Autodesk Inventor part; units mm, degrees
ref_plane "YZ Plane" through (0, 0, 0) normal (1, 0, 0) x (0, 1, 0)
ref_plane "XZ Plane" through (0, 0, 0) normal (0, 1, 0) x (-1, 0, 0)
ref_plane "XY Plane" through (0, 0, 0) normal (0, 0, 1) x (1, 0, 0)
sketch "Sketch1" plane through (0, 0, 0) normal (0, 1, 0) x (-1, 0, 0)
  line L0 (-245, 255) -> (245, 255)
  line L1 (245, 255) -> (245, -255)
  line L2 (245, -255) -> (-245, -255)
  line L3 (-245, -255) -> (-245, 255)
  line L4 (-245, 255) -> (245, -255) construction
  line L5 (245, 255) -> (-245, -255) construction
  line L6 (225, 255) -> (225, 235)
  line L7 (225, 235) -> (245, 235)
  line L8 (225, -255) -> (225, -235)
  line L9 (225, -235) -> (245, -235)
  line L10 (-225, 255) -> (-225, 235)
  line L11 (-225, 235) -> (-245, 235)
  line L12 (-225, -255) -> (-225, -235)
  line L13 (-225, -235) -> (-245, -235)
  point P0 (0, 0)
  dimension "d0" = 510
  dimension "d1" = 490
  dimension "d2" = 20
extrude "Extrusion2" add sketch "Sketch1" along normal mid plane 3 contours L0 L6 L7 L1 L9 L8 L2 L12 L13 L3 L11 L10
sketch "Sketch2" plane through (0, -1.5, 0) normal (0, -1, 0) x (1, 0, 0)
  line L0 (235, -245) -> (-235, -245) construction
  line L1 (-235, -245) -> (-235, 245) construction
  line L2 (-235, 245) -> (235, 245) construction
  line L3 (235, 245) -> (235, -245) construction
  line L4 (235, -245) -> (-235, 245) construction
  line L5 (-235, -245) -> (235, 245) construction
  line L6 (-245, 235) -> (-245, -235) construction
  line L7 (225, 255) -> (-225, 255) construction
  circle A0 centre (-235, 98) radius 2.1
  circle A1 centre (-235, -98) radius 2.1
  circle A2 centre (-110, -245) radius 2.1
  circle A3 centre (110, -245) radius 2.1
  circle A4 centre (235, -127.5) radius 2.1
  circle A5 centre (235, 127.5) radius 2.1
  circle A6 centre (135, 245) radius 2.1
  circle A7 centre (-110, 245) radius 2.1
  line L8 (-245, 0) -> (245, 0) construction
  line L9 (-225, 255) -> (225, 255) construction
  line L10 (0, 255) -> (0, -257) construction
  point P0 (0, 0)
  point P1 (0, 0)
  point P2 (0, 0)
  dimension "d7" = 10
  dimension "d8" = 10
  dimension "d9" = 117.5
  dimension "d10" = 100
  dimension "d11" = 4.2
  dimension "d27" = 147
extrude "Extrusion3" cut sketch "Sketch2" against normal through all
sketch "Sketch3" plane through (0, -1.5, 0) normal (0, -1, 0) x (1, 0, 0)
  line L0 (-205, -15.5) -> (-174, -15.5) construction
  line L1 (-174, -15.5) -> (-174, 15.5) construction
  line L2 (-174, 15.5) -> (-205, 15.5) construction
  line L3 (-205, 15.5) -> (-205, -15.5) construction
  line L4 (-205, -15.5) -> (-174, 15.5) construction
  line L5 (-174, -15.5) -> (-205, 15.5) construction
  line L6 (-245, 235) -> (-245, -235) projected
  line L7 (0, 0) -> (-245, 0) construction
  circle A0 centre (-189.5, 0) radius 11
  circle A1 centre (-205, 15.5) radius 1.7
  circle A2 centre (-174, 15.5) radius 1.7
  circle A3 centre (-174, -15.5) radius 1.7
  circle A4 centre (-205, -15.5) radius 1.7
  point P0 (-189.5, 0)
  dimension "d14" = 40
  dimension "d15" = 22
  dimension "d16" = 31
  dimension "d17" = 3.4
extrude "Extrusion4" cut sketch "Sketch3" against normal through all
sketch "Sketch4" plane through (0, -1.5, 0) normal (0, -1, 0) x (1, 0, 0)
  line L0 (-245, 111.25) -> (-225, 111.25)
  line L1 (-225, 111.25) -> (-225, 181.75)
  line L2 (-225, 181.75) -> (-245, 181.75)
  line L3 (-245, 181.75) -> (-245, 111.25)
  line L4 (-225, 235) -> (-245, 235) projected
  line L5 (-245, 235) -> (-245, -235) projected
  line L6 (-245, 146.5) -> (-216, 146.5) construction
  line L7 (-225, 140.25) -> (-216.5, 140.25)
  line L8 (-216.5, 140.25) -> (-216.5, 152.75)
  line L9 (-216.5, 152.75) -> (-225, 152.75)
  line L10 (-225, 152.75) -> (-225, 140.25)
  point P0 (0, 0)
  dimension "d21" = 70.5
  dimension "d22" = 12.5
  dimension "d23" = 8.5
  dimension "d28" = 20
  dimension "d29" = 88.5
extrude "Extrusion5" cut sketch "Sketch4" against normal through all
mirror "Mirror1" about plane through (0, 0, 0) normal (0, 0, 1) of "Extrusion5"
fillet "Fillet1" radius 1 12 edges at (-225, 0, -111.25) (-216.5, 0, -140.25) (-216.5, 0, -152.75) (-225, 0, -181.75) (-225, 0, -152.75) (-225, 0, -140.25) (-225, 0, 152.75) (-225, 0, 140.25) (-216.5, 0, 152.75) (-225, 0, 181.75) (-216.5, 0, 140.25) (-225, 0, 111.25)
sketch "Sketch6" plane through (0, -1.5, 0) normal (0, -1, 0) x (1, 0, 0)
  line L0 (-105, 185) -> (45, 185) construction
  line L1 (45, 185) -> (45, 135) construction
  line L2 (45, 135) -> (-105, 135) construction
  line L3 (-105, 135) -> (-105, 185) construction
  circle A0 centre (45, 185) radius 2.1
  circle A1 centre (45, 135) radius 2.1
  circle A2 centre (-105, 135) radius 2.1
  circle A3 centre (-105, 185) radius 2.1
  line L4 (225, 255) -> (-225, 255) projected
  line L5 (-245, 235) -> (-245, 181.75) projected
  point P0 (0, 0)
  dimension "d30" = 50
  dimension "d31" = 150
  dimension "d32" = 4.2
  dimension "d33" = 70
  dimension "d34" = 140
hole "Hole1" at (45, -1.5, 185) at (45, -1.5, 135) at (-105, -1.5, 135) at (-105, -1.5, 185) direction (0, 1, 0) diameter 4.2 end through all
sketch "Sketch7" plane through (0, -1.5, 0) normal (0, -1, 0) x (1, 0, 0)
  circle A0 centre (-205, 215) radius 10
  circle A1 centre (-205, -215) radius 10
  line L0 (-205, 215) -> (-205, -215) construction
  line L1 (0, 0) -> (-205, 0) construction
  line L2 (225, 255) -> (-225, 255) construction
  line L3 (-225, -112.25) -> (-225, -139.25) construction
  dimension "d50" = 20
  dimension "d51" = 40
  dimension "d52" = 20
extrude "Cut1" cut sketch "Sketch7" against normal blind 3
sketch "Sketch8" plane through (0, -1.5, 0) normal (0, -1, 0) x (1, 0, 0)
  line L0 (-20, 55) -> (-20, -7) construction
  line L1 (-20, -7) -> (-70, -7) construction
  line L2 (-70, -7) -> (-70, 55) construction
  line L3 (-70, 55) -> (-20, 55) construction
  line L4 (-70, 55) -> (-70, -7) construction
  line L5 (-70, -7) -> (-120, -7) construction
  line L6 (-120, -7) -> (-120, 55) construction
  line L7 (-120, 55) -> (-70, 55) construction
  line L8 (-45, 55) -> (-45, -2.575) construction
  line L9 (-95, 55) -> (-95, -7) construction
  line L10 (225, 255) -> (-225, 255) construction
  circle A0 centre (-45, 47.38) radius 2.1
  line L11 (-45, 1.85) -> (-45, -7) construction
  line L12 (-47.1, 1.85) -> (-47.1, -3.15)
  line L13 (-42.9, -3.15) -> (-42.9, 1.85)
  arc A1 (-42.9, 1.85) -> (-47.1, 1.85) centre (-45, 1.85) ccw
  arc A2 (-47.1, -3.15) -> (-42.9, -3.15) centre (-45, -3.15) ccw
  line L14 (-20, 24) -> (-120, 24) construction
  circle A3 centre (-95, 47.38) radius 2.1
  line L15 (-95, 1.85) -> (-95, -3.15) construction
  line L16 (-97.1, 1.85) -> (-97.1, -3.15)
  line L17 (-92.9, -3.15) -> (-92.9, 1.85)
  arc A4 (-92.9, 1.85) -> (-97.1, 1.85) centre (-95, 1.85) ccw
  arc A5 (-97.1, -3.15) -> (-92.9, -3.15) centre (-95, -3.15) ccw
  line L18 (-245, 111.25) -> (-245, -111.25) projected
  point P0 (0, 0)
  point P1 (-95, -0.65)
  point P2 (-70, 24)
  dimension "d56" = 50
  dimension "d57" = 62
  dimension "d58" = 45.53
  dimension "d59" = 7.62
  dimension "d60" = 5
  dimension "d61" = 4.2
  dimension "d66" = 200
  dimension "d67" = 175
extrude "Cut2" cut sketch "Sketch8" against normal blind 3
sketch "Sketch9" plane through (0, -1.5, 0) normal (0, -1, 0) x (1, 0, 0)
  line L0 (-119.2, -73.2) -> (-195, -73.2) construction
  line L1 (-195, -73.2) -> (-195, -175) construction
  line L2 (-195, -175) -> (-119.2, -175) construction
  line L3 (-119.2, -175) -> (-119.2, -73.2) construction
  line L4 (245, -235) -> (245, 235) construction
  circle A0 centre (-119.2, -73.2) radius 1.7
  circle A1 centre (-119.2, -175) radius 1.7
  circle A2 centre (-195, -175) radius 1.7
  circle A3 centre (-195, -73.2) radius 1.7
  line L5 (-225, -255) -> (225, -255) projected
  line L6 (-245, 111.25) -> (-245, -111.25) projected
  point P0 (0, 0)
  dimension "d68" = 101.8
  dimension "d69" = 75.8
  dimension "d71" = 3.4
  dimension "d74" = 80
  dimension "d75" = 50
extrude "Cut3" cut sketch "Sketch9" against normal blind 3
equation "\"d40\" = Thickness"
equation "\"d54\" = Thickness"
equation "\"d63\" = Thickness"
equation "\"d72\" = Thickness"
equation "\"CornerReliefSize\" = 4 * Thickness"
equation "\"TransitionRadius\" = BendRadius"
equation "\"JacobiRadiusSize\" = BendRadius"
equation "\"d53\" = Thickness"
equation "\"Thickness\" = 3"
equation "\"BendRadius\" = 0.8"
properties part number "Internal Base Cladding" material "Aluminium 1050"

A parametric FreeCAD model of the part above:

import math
import FreeCAD as App
import Part
import Sketcher
Q = App.Units.Quantity


def edges_at(feature, points):
    """Names of the edges that pass closest to the given points."""
    edges = feature.Shape.Edges
    near = lambda p: min(range(len(edges)), key=lambda i: edges[i].distToShape(Part.Vertex(*p))[0])
    return sorted({f"Edge{near(p) + 1}" for p in points})


def add_polygon(sketch, points):
    """Adds a closed chain of lines whose ends are joined by coincident constraints."""
    first, n = sketch.GeometryCount, len(points)
    for a, b in zip(points, points[1:] + points[:1]):
        sketch.addGeometry(Part.LineSegment(App.Vector(*a, 0), App.Vector(*b, 0)), False)
    for i in range(n):
        sketch.addConstraint(Sketcher.Constraint("Coincident", first + i, 2, first + (i + 1) % n, 1))

doc = App.newDocument("Part")
body = doc.addObject("PartDesign::Body", "Body")

sketch1 = body.newObject("Sketcher::SketchObject", "Sketch")
sketch1.AttachmentSupport = (doc.getObject("XZ_Plane"), [""])
sketch1.MapMode = "FlatFace"
add_polygon(sketch1, [(-225, 255), (225, 255), (225, 235), (245, 235), (245, -235), (225, -235), (225, -255), (-225, -255), (-225, -235), (-245, -235), (-245, 235), (-225, 235)])
sketch1.addConstraint([
    Sketcher.Constraint("Horizontal", 0),
    Sketcher.Constraint("Vertical", 1),
    Sketcher.Constraint("Horizontal", 2),
    Sketcher.Constraint("Vertical", 3),
    Sketcher.Constraint("Horizontal", 4),
    Sketcher.Constraint("Vertical", 5),
    Sketcher.Constraint("Horizontal", 6),
    Sketcher.Constraint("Vertical", 7),
    Sketcher.Constraint("Horizontal", 8),
    Sketcher.Constraint("Vertical", 9),
    Sketcher.Constraint("Horizontal", 10),
    Sketcher.Constraint("Vertical", 11),
    Sketcher.Constraint("Symmetric", 0, 2, 6, 2, -1, 1),
    Sketcher.Constraint("Symmetric", 2, 2, 8, 2, -1, 1),
    Sketcher.Constraint("Symmetric", 4, 2, 10, 2, -1, 1),
    Sketcher.Constraint("Symmetric", 4, 2, 7, 2, -2),
    Sketcher.Constraint("Equal", 10, 1),
    Sketcher.Constraint("DistanceX", 2, 1, 2, 2, Q("20 mm")),
    Sketcher.Constraint("DistanceY", 3, 2, 0, 2, Q("490 mm")),
    Sketcher.Constraint("DistanceX", 8, 2, 3, 2, Q("490 mm")),
])
pad1 = body.newObject("PartDesign::Pad", "Pad")
pad1.Profile = sketch1
pad1.Length = 3
pad1.Midplane = True

sketch2 = body.newObject("Sketcher::SketchObject", "Sketch001")
sketch2.AttachmentSupport = (doc.getObject("XZ_Plane"), [""])
sketch2.MapMode = "FlatFace"
sketch2.AttachmentOffset = App.Placement(App.Vector(0, 0, 1.5), App.Rotation())
sketch2.addGeometry([
    Part.Circle(App.Vector(-235, 98, 0), App.Vector(0, 0, 1), 2.1),
    Part.Circle(App.Vector(-235, -98, 0), App.Vector(0, 0, 1), 2.1),
    Part.Circle(App.Vector(-110, -245, 0), App.Vector(0, 0, 1), 2.1),
    Part.Circle(App.Vector(110, -245, 0), App.Vector(0, 0, 1), 2.1),
    Part.Circle(App.Vector(235, -127.5, 0), App.Vector(0, 0, 1), 2.1),
    Part.Circle(App.Vector(235, 127.5, 0), App.Vector(0, 0, 1), 2.1),
    Part.Circle(App.Vector(135, 245, 0), App.Vector(0, 0, 1), 2.1),
    Part.Circle(App.Vector(-110, 245, 0), App.Vector(0, 0, 1), 2.1),
], False)
sketch2.addConstraint([
    Sketcher.Constraint("Equal", 0, 1),
    Sketcher.Constraint("Equal", 1, 2),
    Sketcher.Constraint("Equal", 2, 3),
    Sketcher.Constraint("Equal", 3, 4),
    Sketcher.Constraint("Equal", 4, 5),
    Sketcher.Constraint("Equal", 5, 6),
    Sketcher.Constraint("Equal", 6, 7),
    Sketcher.Constraint("Symmetric", 3, 3, 7, 3, -1, 1),
    Sketcher.Constraint("Symmetric", 2, 3, 3, 3, -2),
    Sketcher.Constraint("Symmetric", 0, 3, 1, 3, -1),
    Sketcher.Constraint("Symmetric", 4, 3, 5, 3, -1),
    Sketcher.Constraint("Horizontal", 6, 3, 7, 3),
    Sketcher.Constraint("Diameter", 0, Q("4.2 mm")),
    Sketcher.Constraint("DistanceY", 2, 3, 1, 3, Q("147 mm")),
    Sketcher.Constraint("DistanceX", 6, 3, 5, 3, Q("100 mm")),
    Sketcher.Constraint("DistanceY", 3, 3, 4, 3, Q("117.5 mm")),
    Sketcher.Constraint("DistanceX", 0, 3, -1, 1, Q("235 mm")),
    Sketcher.Constraint("DistanceY", -1, 1, 0, 3, Q("98 mm")),
    Sketcher.Constraint("DistanceX", 2, 3, -1, 1, Q("110 mm")),
    Sketcher.Constraint("DistanceX", -1, 1, 4, 3, Q("235 mm")),
])
pocket1 = body.newObject("PartDesign::Pocket", "Pocket")
pocket1.Profile = sketch2
pocket1.Type = "ThroughAll"

sketch3 = body.newObject("Sketcher::SketchObject", "Sketch002")
sketch3.AttachmentSupport = (doc.getObject("XZ_Plane"), [""])
sketch3.MapMode = "FlatFace"
sketch3.AttachmentOffset = App.Placement(App.Vector(0, 0, 1.5), App.Rotation())
sketch3.addGeometry([
    Part.Circle(App.Vector(-189.5, 0, 0), App.Vector(0, 0, 1), 11),
    Part.Circle(App.Vector(-205, 15.5, 0), App.Vector(0, 0, 1), 1.7),
    Part.Circle(App.Vector(-174, 15.5, 0), App.Vector(0, 0, 1), 1.7),
    Part.Circle(App.Vector(-174, -15.5, 0), App.Vector(0, 0, 1), 1.7),
    Part.Circle(App.Vector(-205, -15.5, 0), App.Vector(0, 0, 1), 1.7),
], False)
sketch3.addConstraint([
    Sketcher.Constraint("Equal", 1, 2),
    Sketcher.Constraint("Equal", 2, 3),
    Sketcher.Constraint("Equal", 3, 4),
    Sketcher.Constraint("Symmetric", 2, 3, 3, 3, -1),
    Sketcher.Constraint("Symmetric", 1, 3, 4, 3, -1),
    Sketcher.Constraint("PointOnObject", 0, 3, -1),
    Sketcher.Constraint("Horizontal", 1, 3, 2, 3),
    Sketcher.Constraint("Diameter", 0, Q("22 mm")),
    Sketcher.Constraint("Diameter", 1, Q("3.4 mm")),
    Sketcher.Constraint("DistanceX", 1, 3, 2, 3, Q("31 mm")),
    Sketcher.Constraint("DistanceY", 3, 3, 2, 3, Q("31 mm")),
    Sketcher.Constraint("DistanceX", 1, 3, -1, 1, Q("205 mm")),
    Sketcher.Constraint("DistanceX", 0, 3, -1, 1, Q("189.5 mm")),
])
pocket2 = body.newObject("PartDesign::Pocket", "Pocket001")
pocket2.Profile = sketch3
pocket2.Type = "ThroughAll"

sketch4 = body.newObject("Sketcher::SketchObject", "Sketch003")
sketch4.AttachmentSupport = (doc.getObject("XZ_Plane"), [""])
sketch4.MapMode = "FlatFace"
sketch4.AttachmentOffset = App.Placement(App.Vector(0, 0, 1.5), App.Rotation())
add_polygon(sketch4, [(-245, 182), (-245, 111), (-225, 111), (-225, 140), (-216, 140), (-216, 153), (-225, 153), (-225, 182)])
sketch4.addConstraint([
    Sketcher.Constraint("Vertical", 0),
    Sketcher.Constraint("Horizontal", 1),
    Sketcher.Constraint("Vertical", 2),
    Sketcher.Constraint("Horizontal", 3),
    Sketcher.Constraint("Vertical", 4),
    Sketcher.Constraint("Horizontal", 5),
    Sketcher.Constraint("Vertical", 6),
    Sketcher.Constraint("Horizontal", 7),
    Sketcher.Constraint("Vertical", 2, 2, 5, 2),
    Sketcher.Constraint("Equal", 2, 6),
    Sketcher.Constraint("DistanceX", 1, 1, 1, 2, Q("20 mm")),
    Sketcher.Constraint("DistanceX", 3, 1, 3, 2, Q("8.5 mm")),
    Sketcher.Constraint("DistanceY", 0, 2, 0, 1, Q("70.5 mm")),
    Sketcher.Constraint("DistanceY", 4, 1, 4, 2, Q("12.5 mm")),
    Sketcher.Constraint("DistanceX", 0, 2, -1, 1, Q("245 mm")),
    Sketcher.Constraint("DistanceY", -1, 1, 0, 2, Q("111.25 mm")),
])
pocket3 = body.newObject("PartDesign::Pocket", "Pocket002")
pocket3.Profile = sketch4
pocket3.Type = "ThroughAll"
doc.recompute()

mirrored = body.newObject("PartDesign::Mirrored", "Mirrored")
mirrored.Originals = [pocket3]
mirrored.MirrorPlane = (doc.getObject("XY_Plane"), [""])
body.Tip = mirrored
doc.recompute()

fillet = body.newObject("PartDesign::Fillet", "Fillet")
fillet.Base = (mirrored, edges_at(mirrored, [
    (-225, 0, -111.25),
    (-216.5, 0, -140.25),
    (-216.5, 0, -152.75),
    (-225, 0, -181.75),
    (-225, 0, -152.75),
    (-225, 0, -140.25),
    (-225, 0, 152.75),
    (-225, 0, 140.25),
    (-216.5, 0, 152.75),
    (-225, 0, 181.75),
    (-216.5, 0, 140.25),
    (-225, 0, 111.25),
]))
fillet.Radius = 1

sketch5 = body.newObject("Sketcher::SketchObject", "Sketch004")
sketch5.AttachmentSupport = (doc.getObject("XZ_Plane"), [""])
sketch5.MapMode = "FlatFace"
sketch5.AttachmentOffset = App.Placement(App.Vector(0, 0, 1.5), App.Rotation())
sketch5.addGeometry([
    Part.Circle(App.Vector(45, 185, 0), App.Vector(0, 0, 1), 2.1),
    Part.Circle(App.Vector(45, 135, 0), App.Vector(0, 0, 1), 2.1),
    Part.Circle(App.Vector(-105, 135, 0), App.Vector(0, 0, 1), 2.1),
    Part.Circle(App.Vector(-105, 185, 0), App.Vector(0, 0, 1), 2.1),
], False)
sketch5.addConstraint([
    Sketcher.Constraint("Equal", 0, 1),
    Sketcher.Constraint("Equal", 1, 2),
    Sketcher.Constraint("Equal", 2, 3),
    Sketcher.Constraint("Horizontal", 1, 3, 2, 3),
    Sketcher.Constraint("Horizontal", 0, 3, 3, 3),
    Sketcher.Constraint("Vertical", 0, 3, 1, 3),
    Sketcher.Constraint("Vertical", 2, 3, 3, 3),
    Sketcher.Constraint("Diameter", 0, Q("4.2 mm")),
    Sketcher.Constraint("DistanceX", -1, 1, 0, 3, Q("45 mm")),
    Sketcher.Constraint("DistanceY", -1, 1, 0, 3, Q("185 mm")),
    Sketcher.Constraint("DistanceY", -1, 1, 1, 3, Q("135 mm")),
    Sketcher.Constraint("DistanceX", 2, 3, -1, 1, Q("105 mm")),
])
doc.recompute()
hole = body.newObject("PartDesign::Hole", "Hole")
hole.Profile = sketch5
hole.ThreadType = "None"
hole.Diameter = 4.2
hole.DepthType = "ThroughAll"

sketch6 = body.newObject("Sketcher::SketchObject", "Sketch005")
sketch6.AttachmentSupport = (doc.getObject("XZ_Plane"), [""])
sketch6.MapMode = "FlatFace"
sketch6.AttachmentOffset = App.Placement(App.Vector(0, 0, 1.5), App.Rotation())
sketch6.addGeometry([
    Part.Circle(App.Vector(-205, 215, 0), App.Vector(0, 0, 1), 10),
    Part.Circle(App.Vector(-205, -215, 0), App.Vector(0, 0, 1), 10),
], False)
sketch6.addConstraint([
    Sketcher.Constraint("Equal", 0, 1),
    Sketcher.Constraint("Symmetric", 0, 3, 1, 3, -1),
    Sketcher.Constraint("Diameter", 0, Q("20 mm")),
    Sketcher.Constraint("DistanceX", 0, 3, -1, 1, Q("205 mm")),
    Sketcher.Constraint("DistanceY", -1, 1, 0, 3, Q("215 mm")),
])
pocket4 = body.newObject("PartDesign::Pocket", "Pocket003")
pocket4.Profile = sketch6
pocket4.Length = 3

sketch7 = body.newObject("Sketcher::SketchObject", "Sketch006")
sketch7.AttachmentSupport = (doc.getObject("XZ_Plane"), [""])
sketch7.MapMode = "FlatFace"
sketch7.AttachmentOffset = App.Placement(App.Vector(0, 0, 1.5), App.Rotation())
sketch7.addGeometry([
    Part.Circle(App.Vector(-45, 47.4, 0), App.Vector(0, 0, 1), 2.1),
    Part.ArcOfCircle(Part.Circle(App.Vector(-45, 1.9, 0), App.Vector(0, 0, 1), 2.1), math.radians(0), math.radians(180)),
    Part.LineSegment(App.Vector(-47.1, 1.9, 0), App.Vector(-47.1, -3.1, 0)),
    Part.ArcOfCircle(Part.Circle(App.Vector(-45, -3.1, 0), App.Vector(0, 0, 1), 2.1), math.radians(180), math.radians(360)),
    Part.LineSegment(App.Vector(-42.9, -3.1, 0), App.Vector(-42.9, 1.9, 0)),
    Part.Circle(App.Vector(-95, 47.4, 0), App.Vector(0, 0, 1), 2.1),
    Part.ArcOfCircle(Part.Circle(App.Vector(-95, 1.9, 0), App.Vector(0, 0, 1), 2.1), math.radians(0), math.radians(180)),
    Part.LineSegment(App.Vector(-97.1, 1.9, 0), App.Vector(-97.1, -3.1, 0)),
    Part.ArcOfCircle(Part.Circle(App.Vector(-95, -3.1, 0), App.Vector(0, 0, 1), 2.1), math.radians(180), math.radians(360)),
    Part.LineSegment(App.Vector(-92.9, -3.1, 0), App.Vector(-92.9, 1.9, 0)),
], False)
sketch7.addConstraint([
    Sketcher.Constraint("Tangent", 1, 2, 2, 1),
    Sketcher.Constraint("Tangent", 2, 2, 3, 1),
    Sketcher.Constraint("Tangent", 3, 2, 4, 1),
    Sketcher.Constraint("Tangent", 4, 2, 1, 1),
    Sketcher.Constraint("Tangent", 6, 2, 7, 1),
    Sketcher.Constraint("Tangent", 7, 2, 8, 1),
    Sketcher.Constraint("Tangent", 8, 2, 9, 1),
    Sketcher.Constraint("Tangent", 9, 2, 6, 1),
    Sketcher.Constraint("Vertical", 2),
    Sketcher.Constraint("Vertical", 4),
    Sketcher.Constraint("Vertical", 7),
    Sketcher.Constraint("Vertical", 9),
    Sketcher.Constraint("Equal", 0, 1),
    Sketcher.Constraint("Equal", 3, 5),
    Sketcher.Constraint("Equal", 5, 6),
    Sketcher.Constraint("Horizontal", 0, 3, 5, 3),
    Sketcher.Constraint("Horizontal", 1, 3, 6, 3),
    Sketcher.Constraint("Horizontal", 3, 3, 8, 3),
    Sketcher.Constraint("Vertical", 0, 3, 1, 3),
    Sketcher.Constraint("Vertical", 5, 3, 6, 3),
    Sketcher.Constraint("Diameter", 0, Q("4.2 mm")),
    Sketcher.Constraint("DistanceY", 2, 2, 2, 1, Q("5 mm")),
    Sketcher.Constraint("DistanceX", 5, 3, 0, 3, Q("50 mm")),
    Sketcher.Constraint("DistanceY", 1, 3, 0, 3, Q("45.53 mm")),
    Sketcher.Constraint("DistanceX", 0, 3, -1, 1, Q("45 mm")),
    Sketcher.Constraint("DistanceY", -1, 1, 0, 3, Q("47.38 mm")),
])
pocket5 = body.newObject("PartDesign::Pocket", "Pocket004")
pocket5.Profile = sketch7
pocket5.Length = 3

sketch8 = body.newObject("Sketcher::SketchObject", "Sketch007")
sketch8.AttachmentSupport = (doc.getObject("XZ_Plane"), [""])
sketch8.MapMode = "FlatFace"
sketch8.AttachmentOffset = App.Placement(App.Vector(0, 0, 1.5), App.Rotation())
sketch8.addGeometry([
    Part.Circle(App.Vector(-119.2, -73.2, 0), App.Vector(0, 0, 1), 1.7),
    Part.Circle(App.Vector(-119.2, -175, 0), App.Vector(0, 0, 1), 1.7),
    Part.Circle(App.Vector(-195, -175, 0), App.Vector(0, 0, 1), 1.7),
    Part.Circle(App.Vector(-195, -73.2, 0), App.Vector(0, 0, 1), 1.7),
], False)
sketch8.addConstraint([
    Sketcher.Constraint("Equal", 0, 1),
    Sketcher.Constraint("Equal", 1, 2),
    Sketcher.Constraint("Equal", 2, 3),
    Sketcher.Constraint("Horizontal", 1, 3, 2, 3),
    Sketcher.Constraint("Horizontal", 0, 3, 3, 3),
    Sketcher.Constraint("Vertical", 0, 3, 1, 3),
    Sketcher.Constraint("Vertical", 2, 3, 3, 3),
    Sketcher.Constraint("Diameter", 0, Q("3.4 mm")),
    Sketcher.Constraint("DistanceY", 1, 3, 0, 3, Q("101.8 mm")),
    Sketcher.Constraint("DistanceX", 2, 3, 1, 3, Q("75.8 mm")),
    Sketcher.Constraint("DistanceY", 1, 3, -1, 1, Q("175 mm")),
    Sketcher.Constraint("DistanceX", 2, 3, -1, 1, Q("195 mm")),
])
pocket6 = body.newObject("PartDesign::Pocket", "Pocket005")
pocket6.Profile = sketch8
pocket6.Length = 3

doc.recompute()
